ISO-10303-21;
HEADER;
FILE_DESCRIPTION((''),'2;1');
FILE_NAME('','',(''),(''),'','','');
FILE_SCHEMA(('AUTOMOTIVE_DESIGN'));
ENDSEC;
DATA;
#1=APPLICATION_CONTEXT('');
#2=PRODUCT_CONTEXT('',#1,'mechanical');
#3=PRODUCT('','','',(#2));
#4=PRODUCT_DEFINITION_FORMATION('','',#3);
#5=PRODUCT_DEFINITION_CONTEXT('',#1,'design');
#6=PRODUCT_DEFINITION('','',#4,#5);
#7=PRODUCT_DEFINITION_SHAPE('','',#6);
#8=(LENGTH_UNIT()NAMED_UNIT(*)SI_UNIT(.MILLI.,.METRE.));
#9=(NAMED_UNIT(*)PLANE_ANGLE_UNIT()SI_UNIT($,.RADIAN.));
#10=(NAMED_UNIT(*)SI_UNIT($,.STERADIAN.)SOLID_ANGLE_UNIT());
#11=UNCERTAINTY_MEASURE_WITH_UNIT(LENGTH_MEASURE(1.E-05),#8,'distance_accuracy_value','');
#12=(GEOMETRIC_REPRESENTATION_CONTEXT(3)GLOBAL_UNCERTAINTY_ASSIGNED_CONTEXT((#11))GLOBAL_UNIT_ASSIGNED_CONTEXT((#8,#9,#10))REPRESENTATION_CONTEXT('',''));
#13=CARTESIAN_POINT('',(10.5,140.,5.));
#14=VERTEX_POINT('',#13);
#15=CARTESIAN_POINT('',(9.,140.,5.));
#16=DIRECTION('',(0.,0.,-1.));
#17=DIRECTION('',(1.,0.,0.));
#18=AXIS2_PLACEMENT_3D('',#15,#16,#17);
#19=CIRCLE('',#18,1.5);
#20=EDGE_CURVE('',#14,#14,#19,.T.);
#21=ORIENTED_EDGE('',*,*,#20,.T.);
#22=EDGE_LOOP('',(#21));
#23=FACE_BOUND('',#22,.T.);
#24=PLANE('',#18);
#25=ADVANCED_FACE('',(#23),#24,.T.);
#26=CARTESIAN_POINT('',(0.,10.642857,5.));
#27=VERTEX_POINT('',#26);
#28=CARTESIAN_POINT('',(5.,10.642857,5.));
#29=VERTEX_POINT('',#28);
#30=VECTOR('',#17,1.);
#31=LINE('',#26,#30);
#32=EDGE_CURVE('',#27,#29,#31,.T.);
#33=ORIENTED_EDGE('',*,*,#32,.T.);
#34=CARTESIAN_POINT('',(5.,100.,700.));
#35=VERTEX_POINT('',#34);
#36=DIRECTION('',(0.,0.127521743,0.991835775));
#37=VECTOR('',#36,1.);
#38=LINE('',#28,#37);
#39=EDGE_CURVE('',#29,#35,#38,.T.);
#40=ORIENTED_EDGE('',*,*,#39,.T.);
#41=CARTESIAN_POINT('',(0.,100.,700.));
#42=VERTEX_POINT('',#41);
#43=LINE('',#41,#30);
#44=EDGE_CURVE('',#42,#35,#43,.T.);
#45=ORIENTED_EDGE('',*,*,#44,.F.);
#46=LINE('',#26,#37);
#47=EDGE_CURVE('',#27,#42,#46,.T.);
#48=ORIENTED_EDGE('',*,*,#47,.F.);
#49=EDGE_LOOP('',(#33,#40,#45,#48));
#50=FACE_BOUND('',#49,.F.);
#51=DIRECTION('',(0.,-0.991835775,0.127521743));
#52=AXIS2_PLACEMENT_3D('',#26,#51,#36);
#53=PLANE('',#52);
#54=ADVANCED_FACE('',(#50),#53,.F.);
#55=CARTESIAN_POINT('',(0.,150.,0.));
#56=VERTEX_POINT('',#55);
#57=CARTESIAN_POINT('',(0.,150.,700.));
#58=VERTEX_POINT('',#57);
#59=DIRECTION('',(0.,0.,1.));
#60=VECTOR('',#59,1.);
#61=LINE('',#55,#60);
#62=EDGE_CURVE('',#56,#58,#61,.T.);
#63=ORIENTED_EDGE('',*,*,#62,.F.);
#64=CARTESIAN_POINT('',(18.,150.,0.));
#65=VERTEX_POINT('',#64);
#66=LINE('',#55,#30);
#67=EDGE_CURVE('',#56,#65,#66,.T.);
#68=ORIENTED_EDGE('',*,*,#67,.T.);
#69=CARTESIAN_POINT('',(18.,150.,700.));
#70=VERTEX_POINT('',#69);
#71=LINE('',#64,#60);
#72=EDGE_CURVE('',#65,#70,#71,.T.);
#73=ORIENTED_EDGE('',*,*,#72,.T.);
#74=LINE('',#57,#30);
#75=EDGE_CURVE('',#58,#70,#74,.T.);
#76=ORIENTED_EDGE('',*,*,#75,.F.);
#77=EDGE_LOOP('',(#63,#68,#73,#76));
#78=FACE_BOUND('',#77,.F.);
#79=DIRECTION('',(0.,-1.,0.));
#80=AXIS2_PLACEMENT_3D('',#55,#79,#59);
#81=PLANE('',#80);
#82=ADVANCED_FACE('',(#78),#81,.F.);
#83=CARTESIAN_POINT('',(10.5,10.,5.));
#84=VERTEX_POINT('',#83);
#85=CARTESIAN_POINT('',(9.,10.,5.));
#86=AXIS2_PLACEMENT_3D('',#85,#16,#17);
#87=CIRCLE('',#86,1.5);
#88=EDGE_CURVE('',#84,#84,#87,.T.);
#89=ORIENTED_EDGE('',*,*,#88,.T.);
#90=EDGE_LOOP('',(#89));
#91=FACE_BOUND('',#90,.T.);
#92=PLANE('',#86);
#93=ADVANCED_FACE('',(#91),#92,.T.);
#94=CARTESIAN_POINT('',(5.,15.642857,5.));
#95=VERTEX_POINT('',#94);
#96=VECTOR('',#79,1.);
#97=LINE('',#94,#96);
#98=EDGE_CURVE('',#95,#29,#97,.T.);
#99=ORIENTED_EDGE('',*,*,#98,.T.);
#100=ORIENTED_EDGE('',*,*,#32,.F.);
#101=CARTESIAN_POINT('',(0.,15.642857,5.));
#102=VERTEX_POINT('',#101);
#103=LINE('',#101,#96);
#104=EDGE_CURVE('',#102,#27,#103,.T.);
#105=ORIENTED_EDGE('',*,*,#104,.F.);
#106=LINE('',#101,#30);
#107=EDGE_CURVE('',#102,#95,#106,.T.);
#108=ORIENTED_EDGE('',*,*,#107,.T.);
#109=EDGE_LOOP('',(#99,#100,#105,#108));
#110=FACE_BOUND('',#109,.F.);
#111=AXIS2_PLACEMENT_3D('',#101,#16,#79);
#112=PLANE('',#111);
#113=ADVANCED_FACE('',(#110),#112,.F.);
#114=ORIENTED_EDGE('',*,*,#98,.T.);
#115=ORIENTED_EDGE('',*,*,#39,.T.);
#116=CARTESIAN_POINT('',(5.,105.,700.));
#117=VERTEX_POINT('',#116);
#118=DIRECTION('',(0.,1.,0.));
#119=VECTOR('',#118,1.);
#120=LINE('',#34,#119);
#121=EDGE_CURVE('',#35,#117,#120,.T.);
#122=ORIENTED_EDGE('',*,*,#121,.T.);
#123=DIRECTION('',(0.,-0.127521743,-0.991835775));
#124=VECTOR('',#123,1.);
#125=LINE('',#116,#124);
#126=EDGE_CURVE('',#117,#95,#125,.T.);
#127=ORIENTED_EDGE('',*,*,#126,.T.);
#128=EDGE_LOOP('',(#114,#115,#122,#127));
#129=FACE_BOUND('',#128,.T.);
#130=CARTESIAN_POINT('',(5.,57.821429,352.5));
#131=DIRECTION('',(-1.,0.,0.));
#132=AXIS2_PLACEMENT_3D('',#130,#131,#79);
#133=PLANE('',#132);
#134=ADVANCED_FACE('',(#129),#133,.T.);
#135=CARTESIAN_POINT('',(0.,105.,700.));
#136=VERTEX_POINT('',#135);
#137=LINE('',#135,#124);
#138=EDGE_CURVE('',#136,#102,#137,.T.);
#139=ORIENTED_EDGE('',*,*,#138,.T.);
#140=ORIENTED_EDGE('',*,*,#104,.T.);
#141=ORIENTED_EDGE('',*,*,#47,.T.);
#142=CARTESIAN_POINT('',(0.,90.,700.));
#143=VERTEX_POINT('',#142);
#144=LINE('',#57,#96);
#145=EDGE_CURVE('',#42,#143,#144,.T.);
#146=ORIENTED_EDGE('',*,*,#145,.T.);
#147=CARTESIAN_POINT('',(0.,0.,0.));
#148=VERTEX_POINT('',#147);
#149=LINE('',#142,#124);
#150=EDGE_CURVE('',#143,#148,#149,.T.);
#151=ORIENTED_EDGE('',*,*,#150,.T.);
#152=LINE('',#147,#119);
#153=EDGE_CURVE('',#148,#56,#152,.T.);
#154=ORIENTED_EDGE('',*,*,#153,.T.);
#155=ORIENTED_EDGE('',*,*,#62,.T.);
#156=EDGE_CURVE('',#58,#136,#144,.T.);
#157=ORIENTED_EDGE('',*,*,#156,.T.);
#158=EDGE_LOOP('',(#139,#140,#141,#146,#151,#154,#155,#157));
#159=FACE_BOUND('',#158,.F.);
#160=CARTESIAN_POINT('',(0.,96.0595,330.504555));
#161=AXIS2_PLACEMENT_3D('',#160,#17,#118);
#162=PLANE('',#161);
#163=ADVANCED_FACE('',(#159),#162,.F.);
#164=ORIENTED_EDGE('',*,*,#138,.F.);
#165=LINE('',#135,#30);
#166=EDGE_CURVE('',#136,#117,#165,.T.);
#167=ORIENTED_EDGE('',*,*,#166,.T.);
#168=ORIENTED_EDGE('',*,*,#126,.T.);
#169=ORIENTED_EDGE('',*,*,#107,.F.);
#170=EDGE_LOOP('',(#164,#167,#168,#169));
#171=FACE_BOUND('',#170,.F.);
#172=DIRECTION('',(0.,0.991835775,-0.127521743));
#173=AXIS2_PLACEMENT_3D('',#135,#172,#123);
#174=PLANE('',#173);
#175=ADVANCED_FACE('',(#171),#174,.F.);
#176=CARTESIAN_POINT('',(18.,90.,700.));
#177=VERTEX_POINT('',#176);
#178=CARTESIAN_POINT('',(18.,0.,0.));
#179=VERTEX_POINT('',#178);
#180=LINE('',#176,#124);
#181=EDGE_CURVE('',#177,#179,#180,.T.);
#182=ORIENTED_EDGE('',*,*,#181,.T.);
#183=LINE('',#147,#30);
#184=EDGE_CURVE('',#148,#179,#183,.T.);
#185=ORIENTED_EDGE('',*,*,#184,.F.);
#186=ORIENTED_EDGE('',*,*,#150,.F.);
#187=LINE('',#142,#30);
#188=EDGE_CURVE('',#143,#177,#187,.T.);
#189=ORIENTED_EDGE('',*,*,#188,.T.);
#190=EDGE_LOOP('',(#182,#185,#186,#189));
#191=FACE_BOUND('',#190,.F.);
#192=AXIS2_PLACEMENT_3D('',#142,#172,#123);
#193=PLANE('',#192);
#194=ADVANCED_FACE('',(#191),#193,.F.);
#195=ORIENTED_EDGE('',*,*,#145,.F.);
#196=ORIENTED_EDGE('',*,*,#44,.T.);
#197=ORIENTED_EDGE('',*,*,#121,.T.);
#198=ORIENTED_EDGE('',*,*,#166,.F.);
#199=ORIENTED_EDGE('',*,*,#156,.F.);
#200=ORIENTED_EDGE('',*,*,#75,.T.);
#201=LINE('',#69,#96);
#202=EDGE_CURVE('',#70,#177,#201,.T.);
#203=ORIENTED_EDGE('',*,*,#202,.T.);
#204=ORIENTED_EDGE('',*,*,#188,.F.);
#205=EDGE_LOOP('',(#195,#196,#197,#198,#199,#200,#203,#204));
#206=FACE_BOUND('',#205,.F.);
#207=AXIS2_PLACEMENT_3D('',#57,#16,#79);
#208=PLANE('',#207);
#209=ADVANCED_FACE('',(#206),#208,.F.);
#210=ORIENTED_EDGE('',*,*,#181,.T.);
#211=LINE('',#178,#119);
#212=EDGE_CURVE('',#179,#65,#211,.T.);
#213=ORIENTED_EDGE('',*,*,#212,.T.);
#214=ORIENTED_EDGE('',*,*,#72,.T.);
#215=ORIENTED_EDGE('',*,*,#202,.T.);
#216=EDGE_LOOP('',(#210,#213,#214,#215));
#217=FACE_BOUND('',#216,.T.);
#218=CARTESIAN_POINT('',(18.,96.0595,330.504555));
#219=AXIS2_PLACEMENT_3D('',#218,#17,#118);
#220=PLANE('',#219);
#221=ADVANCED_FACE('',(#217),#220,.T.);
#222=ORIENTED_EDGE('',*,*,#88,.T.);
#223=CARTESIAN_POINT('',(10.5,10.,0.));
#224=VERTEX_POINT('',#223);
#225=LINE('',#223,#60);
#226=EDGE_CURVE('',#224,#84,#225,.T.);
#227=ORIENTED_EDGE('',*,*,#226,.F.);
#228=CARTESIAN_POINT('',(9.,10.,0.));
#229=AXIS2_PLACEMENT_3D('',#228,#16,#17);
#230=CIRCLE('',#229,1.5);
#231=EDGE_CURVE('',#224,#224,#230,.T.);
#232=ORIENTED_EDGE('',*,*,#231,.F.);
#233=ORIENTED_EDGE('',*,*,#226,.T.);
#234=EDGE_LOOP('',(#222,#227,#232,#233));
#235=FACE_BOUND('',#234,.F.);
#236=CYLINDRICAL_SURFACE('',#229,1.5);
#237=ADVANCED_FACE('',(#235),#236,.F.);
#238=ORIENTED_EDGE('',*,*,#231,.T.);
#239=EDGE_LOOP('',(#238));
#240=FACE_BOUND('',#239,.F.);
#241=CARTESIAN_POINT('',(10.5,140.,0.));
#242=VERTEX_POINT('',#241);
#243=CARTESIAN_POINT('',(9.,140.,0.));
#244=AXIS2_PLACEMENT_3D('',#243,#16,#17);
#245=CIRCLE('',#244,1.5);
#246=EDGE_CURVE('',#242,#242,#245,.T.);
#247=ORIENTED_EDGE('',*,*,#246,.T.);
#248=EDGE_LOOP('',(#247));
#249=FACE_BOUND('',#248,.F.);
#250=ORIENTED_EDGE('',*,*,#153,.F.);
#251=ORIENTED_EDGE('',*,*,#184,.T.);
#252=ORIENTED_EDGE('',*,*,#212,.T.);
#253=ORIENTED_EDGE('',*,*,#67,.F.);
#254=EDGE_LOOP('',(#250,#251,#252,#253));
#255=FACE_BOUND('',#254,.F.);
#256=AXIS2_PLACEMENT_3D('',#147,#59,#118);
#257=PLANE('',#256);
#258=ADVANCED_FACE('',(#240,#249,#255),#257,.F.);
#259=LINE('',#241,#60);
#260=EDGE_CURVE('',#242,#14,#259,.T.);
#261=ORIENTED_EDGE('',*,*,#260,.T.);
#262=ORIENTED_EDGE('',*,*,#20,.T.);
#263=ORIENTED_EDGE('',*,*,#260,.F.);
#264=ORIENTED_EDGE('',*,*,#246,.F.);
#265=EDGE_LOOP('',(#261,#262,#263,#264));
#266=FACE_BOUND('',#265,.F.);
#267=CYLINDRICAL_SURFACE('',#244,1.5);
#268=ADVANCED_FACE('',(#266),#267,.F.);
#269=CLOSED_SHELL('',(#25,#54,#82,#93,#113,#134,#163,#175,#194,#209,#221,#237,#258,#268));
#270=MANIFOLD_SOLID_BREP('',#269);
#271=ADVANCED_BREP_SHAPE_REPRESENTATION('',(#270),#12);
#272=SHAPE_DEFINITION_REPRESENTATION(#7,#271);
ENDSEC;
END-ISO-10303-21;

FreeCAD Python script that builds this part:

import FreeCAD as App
import Part
import Sketcher

V = App.Vector


def add_polygon(sketch, points):
    """Adds a closed chain of lines whose ends are joined by coincident constraints."""
    first, n = sketch.GeometryCount, len(points)
    for a, b in zip(points, points[1:] + points[:1]):
        sketch.addGeometry(Part.LineSegment(App.Vector(*a, 0), App.Vector(*b, 0)), False)
    for i in range(n):
        sketch.addConstraint(Sketcher.Constraint("Coincident", first + i, 2, first + (i + 1) % n, 1))

doc = App.newDocument("Part")
params = doc.addObject("Spreadsheet::Sheet", "Params")
for row, (alias, value) in enumerate([
    ("sketch1_width", "150 mm"),
    ("sketch1_width2", "60 mm"),
    ("sketch1_height", "700 mm"),
    ("pad1_length", "18 mm"),
    ("sketch2_width", "5 mm"),
    ("pocket1_length", "5 mm"),
    ("sketch3_diameter", "3 mm"),
    ("pocket2_length", "5 mm"),
], start=1):
    params.set(f"A{row}", alias)
    params.set(f"B{row}", "=" + value)
    params.setAlias(f"B{row}", alias)

body = doc.addObject("PartDesign::Body", "Body")

# Sketch on YZ plane
sketch1 = body.newObject("Sketcher::SketchObject", "Sketch")
sketch1.AttachmentSupport = (doc.getObject("YZ_Plane"), [""])
sketch1.MapMode = "FlatFace"
add_polygon(sketch1, [(90, 700), (0, 0), (150, 0), (150, 700)])  # lines 0-3
sketch1.addConstraint([
    Sketcher.Constraint("Horizontal", 1),
    Sketcher.Constraint("Vertical", 2),
    Sketcher.Constraint("Horizontal", 3),
    Sketcher.Constraint("Coincident", 0, 2, -1, 1),
    Sketcher.Constraint("DistanceX", 1, 1, 1, 2, 150.0),
    Sketcher.Constraint("DistanceX", 3, 2, 3, 1, 60.0),
    Sketcher.Constraint("DistanceY", 2, 1, 2, 2, 700.0),
])
sketch1.setExpression("Constraints[8]", "Params.sketch1_width")
sketch1.setExpression("Constraints[9]", "Params.sketch1_width2")
sketch1.setExpression("Constraints[10]", "Params.sketch1_height")
pad1 = body.newObject("PartDesign::Pad", "Pad")
pad1.Profile = sketch1
pad1.setExpression("Length", "Params.pad1_length")

# Sketch on YZ plane
sketch2 = body.newObject("Sketcher::SketchObject", "Sketch001")
sketch2.AttachmentSupport = (doc.getObject("YZ_Plane"), [""])
sketch2.MapMode = "FlatFace"
add_polygon(sketch2, [(16, 5), (11, 5), (100, 700), (105, 700)])  # lines 0-3
sketch2.addConstraint([
    Sketcher.Constraint("Horizontal", 0),
    Sketcher.Constraint("Horizontal", 2),
    Sketcher.Constraint("Parallel", 1, 3),
    Sketcher.Constraint("DistanceX", 0, 2, 0, 1, 5.0),
    Sketcher.Constraint("DistanceY", -1, 1, 0, 2, 5.0),
    Sketcher.Constraint("DistanceX", -1, 1, 1, 2, 100.0),
    Sketcher.Constraint("DistanceY", -1, 1, 1, 2, 700.0),
    Sketcher.Constraint("Distance", 1, 700.720842),
])
sketch2.setExpression("Constraints[7]", "Params.sketch2_width")
pocket1 = body.newObject("PartDesign::Pocket", "Pocket")
pocket1.Profile = sketch2
pocket1.setExpression("Length", "Params.pocket1_length")
pocket1.Reversed = True

# Sketch on XY plane
sketch3 = body.newObject("Sketcher::SketchObject", "Sketch002")
sketch3.AttachmentSupport = (doc.getObject("XY_Plane"), [""])
sketch3.MapMode = "FlatFace"
sketch3.addGeometry([
    Part.Circle(V(9, 10, 0), V(0, 0, 1), 1.5),
    Part.Circle(V(9, 140, 0), V(0, 0, 1), 1.5),
], False)
sketch3.addConstraint([
    Sketcher.Constraint("Equal", 0, 1),
    Sketcher.Constraint("Vertical", 0, 3, 1, 3),
    Sketcher.Constraint("Diameter", 0, 3.0),
    Sketcher.Constraint("DistanceX", -1, 1, 0, 3, 9.0),
    Sketcher.Constraint("DistanceY", -1, 1, 0, 3, 10.0),
    Sketcher.Constraint("DistanceY", -1, 1, 1, 3, 140.0),
])
sketch3.setExpression("Constraints[2]", "Params.sketch3_diameter")
pocket2 = body.newObject("PartDesign::Pocket", "Pocket001")
pocket2.Profile = sketch3
pocket2.setExpression("Length", "Params.pocket2_length")
pocket2.Reversed = True

doc.recompute()
